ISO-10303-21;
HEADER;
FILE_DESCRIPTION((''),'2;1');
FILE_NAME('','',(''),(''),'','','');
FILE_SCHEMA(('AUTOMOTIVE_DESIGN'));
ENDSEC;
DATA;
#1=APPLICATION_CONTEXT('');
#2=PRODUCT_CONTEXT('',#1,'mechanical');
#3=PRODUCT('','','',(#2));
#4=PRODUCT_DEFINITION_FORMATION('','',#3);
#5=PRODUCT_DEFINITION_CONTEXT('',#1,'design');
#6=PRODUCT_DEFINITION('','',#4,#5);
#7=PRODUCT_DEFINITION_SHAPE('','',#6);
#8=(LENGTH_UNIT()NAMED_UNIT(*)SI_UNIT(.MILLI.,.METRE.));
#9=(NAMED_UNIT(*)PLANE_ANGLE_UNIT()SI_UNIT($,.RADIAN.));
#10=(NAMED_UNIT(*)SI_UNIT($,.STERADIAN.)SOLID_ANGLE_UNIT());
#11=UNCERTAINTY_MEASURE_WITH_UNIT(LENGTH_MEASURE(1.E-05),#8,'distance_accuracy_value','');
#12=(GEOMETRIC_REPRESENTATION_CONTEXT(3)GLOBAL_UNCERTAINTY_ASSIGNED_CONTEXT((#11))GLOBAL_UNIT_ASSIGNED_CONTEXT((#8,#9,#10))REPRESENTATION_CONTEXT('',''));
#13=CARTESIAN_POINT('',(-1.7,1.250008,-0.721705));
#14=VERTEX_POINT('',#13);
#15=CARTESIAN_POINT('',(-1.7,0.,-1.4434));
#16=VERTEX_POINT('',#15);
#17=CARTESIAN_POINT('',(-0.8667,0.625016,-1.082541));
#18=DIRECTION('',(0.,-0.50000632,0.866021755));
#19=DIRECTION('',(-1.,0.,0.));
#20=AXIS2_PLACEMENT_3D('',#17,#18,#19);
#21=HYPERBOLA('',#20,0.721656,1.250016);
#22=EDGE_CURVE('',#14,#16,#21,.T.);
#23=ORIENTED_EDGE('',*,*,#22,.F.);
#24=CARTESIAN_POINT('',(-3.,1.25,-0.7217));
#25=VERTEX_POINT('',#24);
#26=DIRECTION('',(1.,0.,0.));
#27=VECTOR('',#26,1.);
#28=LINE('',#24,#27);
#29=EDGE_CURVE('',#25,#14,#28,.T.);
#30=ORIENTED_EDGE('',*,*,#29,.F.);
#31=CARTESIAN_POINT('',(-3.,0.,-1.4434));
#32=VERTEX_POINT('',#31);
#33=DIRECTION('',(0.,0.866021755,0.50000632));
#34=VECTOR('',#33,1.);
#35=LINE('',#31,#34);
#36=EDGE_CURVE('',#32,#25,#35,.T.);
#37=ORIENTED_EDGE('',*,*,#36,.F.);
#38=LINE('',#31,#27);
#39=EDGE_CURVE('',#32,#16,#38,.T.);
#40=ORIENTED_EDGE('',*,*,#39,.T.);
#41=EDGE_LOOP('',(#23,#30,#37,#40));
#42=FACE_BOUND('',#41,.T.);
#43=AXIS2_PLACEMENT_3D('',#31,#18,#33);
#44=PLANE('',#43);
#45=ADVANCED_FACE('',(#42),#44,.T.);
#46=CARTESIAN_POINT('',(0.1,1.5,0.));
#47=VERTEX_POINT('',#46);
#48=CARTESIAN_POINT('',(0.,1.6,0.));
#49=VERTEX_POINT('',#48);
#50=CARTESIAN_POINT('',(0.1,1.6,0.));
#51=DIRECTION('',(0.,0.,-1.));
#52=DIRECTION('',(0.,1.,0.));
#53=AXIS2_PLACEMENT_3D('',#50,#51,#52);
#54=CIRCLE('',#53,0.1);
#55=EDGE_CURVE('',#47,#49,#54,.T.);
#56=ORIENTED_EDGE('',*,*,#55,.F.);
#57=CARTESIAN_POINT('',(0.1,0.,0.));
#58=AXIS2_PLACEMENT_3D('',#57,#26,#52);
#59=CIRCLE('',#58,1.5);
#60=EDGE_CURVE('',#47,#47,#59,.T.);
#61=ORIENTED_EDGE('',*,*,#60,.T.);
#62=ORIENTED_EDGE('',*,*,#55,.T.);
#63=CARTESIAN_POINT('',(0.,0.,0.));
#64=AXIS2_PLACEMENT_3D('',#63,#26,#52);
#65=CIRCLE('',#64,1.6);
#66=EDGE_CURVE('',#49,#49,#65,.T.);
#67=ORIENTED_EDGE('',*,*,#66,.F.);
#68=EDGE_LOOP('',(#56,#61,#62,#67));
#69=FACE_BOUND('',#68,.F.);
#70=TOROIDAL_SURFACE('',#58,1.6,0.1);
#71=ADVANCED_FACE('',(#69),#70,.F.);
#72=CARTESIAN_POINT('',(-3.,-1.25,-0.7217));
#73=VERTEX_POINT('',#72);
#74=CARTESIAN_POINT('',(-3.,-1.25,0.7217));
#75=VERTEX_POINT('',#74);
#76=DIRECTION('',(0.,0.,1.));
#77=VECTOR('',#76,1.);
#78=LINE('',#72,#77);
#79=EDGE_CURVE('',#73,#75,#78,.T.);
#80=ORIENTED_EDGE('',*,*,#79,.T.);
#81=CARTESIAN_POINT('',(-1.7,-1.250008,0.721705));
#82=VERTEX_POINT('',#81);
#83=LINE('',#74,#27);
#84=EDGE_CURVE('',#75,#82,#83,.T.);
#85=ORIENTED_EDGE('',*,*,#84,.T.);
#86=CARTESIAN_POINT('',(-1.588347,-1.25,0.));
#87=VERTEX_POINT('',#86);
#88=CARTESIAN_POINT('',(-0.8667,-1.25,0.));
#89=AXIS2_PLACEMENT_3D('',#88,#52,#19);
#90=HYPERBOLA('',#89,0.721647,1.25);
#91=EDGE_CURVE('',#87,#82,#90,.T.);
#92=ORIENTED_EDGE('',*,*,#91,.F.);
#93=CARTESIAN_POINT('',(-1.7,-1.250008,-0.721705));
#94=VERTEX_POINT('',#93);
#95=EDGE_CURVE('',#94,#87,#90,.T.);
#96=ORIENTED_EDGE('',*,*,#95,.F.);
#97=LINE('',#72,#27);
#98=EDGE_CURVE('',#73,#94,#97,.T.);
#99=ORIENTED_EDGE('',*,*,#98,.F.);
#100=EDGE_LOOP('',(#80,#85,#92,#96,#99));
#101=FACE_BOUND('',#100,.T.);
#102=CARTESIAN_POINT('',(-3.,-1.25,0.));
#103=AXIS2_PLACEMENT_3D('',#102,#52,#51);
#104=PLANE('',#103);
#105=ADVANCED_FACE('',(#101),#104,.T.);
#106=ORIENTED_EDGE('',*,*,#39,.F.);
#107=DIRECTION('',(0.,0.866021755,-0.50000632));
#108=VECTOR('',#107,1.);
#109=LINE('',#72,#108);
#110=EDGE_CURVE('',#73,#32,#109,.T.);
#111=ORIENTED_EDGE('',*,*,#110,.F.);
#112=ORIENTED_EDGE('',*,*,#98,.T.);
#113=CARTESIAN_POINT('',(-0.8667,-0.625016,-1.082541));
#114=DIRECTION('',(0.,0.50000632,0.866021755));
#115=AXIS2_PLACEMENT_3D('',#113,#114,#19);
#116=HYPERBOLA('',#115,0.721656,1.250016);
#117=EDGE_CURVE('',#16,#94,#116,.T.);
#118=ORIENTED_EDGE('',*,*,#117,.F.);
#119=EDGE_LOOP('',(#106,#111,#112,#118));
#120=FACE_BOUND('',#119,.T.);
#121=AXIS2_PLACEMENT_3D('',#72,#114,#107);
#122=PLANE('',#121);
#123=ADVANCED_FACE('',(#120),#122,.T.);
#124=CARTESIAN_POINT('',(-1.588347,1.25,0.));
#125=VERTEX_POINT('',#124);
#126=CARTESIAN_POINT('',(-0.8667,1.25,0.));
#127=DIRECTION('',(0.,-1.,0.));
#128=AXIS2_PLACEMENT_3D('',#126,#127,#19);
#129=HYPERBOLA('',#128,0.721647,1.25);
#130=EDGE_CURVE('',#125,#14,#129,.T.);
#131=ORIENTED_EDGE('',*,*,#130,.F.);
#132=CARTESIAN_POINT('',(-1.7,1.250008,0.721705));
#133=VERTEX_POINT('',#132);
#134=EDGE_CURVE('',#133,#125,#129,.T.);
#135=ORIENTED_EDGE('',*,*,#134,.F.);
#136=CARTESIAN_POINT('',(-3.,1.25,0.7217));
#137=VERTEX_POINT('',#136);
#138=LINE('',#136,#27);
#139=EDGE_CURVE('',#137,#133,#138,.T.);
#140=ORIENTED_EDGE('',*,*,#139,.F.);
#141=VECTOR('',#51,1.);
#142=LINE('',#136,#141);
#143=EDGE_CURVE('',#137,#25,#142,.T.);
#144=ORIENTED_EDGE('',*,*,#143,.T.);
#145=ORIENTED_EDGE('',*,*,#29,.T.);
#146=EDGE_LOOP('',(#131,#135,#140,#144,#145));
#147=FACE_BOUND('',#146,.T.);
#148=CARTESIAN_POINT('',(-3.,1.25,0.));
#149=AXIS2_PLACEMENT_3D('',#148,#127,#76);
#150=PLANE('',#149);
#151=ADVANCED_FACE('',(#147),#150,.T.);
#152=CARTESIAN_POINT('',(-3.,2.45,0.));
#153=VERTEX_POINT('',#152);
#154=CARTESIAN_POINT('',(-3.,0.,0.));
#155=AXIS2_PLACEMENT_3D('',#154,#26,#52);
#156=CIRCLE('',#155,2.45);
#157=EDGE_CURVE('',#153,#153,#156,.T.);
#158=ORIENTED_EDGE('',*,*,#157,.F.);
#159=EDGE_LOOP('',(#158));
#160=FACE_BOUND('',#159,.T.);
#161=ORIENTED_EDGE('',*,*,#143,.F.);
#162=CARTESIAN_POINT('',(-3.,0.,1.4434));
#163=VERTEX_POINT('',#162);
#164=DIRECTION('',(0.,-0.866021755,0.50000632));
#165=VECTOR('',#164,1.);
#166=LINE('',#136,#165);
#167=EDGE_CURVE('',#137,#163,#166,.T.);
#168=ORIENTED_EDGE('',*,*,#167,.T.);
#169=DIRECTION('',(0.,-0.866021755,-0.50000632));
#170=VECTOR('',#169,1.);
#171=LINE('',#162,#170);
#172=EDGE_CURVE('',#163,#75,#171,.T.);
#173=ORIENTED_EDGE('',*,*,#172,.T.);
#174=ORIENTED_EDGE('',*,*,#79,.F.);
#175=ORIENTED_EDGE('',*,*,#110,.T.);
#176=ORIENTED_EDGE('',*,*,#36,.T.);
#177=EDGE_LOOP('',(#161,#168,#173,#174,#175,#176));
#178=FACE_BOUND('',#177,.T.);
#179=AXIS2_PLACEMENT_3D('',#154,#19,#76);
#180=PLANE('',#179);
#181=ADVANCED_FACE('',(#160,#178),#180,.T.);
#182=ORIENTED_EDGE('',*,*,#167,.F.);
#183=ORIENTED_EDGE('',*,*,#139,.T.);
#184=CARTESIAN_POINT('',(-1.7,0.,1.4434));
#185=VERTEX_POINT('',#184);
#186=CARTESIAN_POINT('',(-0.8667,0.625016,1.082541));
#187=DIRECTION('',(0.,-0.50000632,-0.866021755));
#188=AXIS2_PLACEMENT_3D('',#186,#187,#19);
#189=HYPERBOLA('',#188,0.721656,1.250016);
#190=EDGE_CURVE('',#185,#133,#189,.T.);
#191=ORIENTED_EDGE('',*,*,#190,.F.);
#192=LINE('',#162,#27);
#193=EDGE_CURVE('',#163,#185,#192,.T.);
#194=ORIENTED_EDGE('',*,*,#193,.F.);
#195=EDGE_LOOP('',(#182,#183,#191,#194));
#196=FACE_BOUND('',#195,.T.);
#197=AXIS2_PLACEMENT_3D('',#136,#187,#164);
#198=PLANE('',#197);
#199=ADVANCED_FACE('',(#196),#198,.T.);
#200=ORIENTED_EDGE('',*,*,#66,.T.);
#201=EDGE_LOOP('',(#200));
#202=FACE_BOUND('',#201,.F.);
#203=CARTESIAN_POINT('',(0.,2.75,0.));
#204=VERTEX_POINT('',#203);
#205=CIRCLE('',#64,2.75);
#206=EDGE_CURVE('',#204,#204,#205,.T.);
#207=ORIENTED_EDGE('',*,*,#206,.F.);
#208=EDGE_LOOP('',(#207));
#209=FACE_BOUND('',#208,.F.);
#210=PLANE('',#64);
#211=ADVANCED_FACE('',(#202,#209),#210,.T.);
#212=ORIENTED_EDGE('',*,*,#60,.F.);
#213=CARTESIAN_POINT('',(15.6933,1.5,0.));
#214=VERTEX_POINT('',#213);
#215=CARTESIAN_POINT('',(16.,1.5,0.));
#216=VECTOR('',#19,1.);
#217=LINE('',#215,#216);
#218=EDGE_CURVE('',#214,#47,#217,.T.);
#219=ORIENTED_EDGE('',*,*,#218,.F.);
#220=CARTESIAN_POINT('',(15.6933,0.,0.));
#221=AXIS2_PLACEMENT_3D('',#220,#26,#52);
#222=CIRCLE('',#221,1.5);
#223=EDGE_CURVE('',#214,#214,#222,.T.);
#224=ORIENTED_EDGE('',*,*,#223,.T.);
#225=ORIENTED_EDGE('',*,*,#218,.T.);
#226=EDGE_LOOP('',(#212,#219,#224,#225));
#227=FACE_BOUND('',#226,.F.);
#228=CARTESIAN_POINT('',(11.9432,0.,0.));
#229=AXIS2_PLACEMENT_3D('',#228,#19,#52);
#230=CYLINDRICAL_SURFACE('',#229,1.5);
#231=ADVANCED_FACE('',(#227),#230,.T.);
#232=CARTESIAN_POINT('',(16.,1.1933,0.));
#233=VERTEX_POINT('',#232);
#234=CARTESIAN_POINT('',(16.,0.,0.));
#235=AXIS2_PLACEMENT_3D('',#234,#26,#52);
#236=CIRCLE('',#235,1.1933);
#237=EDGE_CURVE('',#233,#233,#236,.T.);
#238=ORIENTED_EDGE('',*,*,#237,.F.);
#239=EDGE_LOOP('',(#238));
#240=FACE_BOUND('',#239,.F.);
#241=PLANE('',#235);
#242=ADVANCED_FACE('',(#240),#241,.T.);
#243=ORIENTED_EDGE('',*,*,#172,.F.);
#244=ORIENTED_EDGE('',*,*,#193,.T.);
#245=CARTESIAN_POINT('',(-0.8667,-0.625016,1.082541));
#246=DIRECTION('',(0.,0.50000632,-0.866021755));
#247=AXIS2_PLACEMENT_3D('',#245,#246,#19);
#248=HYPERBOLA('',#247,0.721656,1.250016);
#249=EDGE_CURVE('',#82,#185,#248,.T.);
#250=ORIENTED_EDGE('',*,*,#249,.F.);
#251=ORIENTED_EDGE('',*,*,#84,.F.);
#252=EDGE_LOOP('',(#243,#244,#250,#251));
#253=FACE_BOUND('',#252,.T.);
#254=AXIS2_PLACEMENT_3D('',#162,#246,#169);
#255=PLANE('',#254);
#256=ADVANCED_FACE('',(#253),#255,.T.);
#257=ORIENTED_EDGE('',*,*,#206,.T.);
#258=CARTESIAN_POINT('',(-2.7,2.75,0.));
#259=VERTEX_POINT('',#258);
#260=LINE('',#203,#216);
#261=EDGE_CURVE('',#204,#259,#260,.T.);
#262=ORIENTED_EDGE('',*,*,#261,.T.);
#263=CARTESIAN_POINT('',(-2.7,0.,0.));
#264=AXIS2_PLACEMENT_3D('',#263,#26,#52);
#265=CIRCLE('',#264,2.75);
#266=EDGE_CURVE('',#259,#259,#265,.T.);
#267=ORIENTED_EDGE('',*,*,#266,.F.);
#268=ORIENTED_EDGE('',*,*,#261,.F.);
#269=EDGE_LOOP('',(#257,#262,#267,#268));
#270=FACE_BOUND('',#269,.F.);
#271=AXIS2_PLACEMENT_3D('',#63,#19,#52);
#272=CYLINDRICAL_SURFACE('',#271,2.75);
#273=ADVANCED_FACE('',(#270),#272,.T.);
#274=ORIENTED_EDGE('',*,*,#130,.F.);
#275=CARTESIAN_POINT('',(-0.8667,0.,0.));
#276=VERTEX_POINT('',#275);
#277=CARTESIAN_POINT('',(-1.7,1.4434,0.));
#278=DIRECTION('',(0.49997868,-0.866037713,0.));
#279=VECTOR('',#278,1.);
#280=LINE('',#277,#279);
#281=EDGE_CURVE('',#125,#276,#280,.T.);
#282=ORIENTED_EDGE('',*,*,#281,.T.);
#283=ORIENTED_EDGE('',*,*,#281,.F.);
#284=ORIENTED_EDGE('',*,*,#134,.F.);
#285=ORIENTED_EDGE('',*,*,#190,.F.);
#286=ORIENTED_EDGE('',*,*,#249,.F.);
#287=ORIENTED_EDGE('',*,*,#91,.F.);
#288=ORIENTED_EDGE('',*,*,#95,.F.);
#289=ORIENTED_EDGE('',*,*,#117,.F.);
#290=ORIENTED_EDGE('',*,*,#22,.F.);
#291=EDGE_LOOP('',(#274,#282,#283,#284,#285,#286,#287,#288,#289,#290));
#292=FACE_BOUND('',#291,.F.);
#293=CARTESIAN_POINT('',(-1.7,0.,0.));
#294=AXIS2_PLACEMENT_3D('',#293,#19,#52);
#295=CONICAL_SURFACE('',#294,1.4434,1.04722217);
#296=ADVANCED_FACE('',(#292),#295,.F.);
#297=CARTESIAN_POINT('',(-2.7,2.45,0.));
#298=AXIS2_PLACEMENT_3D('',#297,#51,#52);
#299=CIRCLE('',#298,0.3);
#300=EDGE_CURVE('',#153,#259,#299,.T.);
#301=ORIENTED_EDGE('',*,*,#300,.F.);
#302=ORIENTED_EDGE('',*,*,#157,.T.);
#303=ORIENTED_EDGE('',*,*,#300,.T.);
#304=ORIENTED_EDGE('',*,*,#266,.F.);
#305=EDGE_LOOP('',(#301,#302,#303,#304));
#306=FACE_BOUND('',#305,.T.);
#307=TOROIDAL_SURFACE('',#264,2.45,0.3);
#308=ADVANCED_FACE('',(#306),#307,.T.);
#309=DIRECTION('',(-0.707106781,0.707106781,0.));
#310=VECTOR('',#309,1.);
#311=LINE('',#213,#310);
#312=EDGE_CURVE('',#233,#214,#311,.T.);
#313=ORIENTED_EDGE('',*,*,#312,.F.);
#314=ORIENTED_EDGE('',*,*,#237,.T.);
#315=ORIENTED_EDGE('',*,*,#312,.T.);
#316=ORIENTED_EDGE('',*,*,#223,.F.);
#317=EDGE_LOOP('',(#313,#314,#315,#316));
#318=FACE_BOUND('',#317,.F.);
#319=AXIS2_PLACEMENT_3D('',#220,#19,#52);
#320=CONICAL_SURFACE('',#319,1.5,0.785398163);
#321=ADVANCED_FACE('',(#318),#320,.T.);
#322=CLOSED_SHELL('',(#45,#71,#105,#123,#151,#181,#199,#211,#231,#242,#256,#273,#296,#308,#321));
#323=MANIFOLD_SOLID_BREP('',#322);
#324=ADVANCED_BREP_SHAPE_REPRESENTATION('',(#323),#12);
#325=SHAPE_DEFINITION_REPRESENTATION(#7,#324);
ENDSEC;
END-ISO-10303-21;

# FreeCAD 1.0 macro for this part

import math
import FreeCAD as App
import Part
import Sketcher
from FreeCAD import Vector
Q = App.Units.Quantity


def edges_at(feature, points):
    """Names of the edges that pass closest to the given points."""
    edges = feature.Shape.Edges
    near = lambda p: min(range(len(edges)), key=lambda i: edges[i].distToShape(Part.Vertex(*p))[0])
    return sorted({f"Edge{near(p) + 1}" for p in points})

doc = App.newDocument("Part")
body = doc.addObject("PartDesign::Body", "Body")

sketch1 = body.newObject("Sketcher::SketchObject", "Sketch")
sketch1.AttachmentSupport = (doc.getObject("XY_Plane"), [""])
sketch1.MapMode = "FlatFace"
sketch1.addGeometry([
    Part.LineSegment(Vector(-1.7, 1.4434, 0), Vector(-0.8667, 0, 0)),
    Part.LineSegment(Vector(-0.8667, 0, 0), Vector(16, 0, 0)),
    Part.LineSegment(Vector(16, 0, 0), Vector(16, 1.5, 0)),
    Part.LineSegment(Vector(16, 1.5, 0), Vector(0, 1.5, 0)),
    Part.LineSegment(Vector(0, 1.5, 0), Vector(0, 2.75, 0)),
    Part.LineSegment(Vector(0, 2.75, 0), Vector(-3, 2.75, 0)),
    Part.LineSegment(Vector(-3, 2.75, 0), Vector(-3, 1.4434, 0)),
    Part.LineSegment(Vector(-3, 1.4434, 0), Vector(-1.7, 1.4434, 0)),
], False)
sketch1.addConstraint([
    Sketcher.Constraint("Coincident", 0, 2, 1, 1),
    Sketcher.Constraint("Coincident", 1, 2, 2, 1),
    Sketcher.Constraint("Coincident", 2, 2, 3, 1),
    Sketcher.Constraint("Coincident", 3, 2, 4, 1),
    Sketcher.Constraint("Coincident", 4, 2, 5, 1),
    Sketcher.Constraint("Coincident", 5, 2, 6, 1),
    Sketcher.Constraint("Coincident", 6, 2, 7, 1),
    Sketcher.Constraint("Coincident", 7, 2, 0, 1),
    Sketcher.Constraint("Horizontal", 1),
    Sketcher.Constraint("Vertical", 2),
    Sketcher.Constraint("Horizontal", 3),
    Sketcher.Constraint("Vertical", 4),
    Sketcher.Constraint("Horizontal", 5),
    Sketcher.Constraint("Vertical", 6),
    Sketcher.Constraint("Horizontal", 7),
    Sketcher.Constraint("PointOnObject", 0, 2, -1),
    Sketcher.Constraint("PointOnObject", 3, 2, -2),
    Sketcher.Constraint("DistanceX", 3, 2, 3, 1, Q("16 mm")),
    Sketcher.Constraint("DistanceX", 5, 2, 5, 1, Q("3 mm")),
    Sketcher.Constraint("DistanceX", 7, 1, 7, 2, Q("1.3 mm")),
    Sketcher.Constraint("DistanceY", 2, 1, 2, 2, Q("1.5 mm")),
    Sketcher.Constraint("DistanceY", 4, 1, 4, 2, Q("1.25 mm")),
    Sketcher.Constraint("DistanceX", 1, 1, 1, 2, Q("16.8667 mm")),
    Sketcher.Constraint("DistanceY", 6, 2, 6, 1, Q("1.3066 mm")),
])
revolution = body.newObject("PartDesign::Revolution", "Revolution")
revolution.Profile = sketch1
revolution.ReferenceAxis = (sketch1, ["H_Axis"])
revolution.Angle = 360

sketch2 = body.newObject("Sketcher::SketchObject", "Sketch001")
sketch2.AttachmentSupport = (doc.getObject("YZ_Plane"), [""])
sketch2.MapMode = "FlatFace"
sketch2.AttachmentOffset = App.Placement(Vector(0, 0, -3), App.Rotation())
sketch2.addGeometry([
    Part.LineSegment(Vector(1.25, 0.7217, 0), Vector(0, 1.4434, 0)),
    Part.ArcOfCircle(Part.Circle(Vector(0, 0, 0), Vector(0, 0, 1), 1.4434), math.radians(30.000418), math.radians(90)),
    Part.ArcOfCircle(Part.Circle(Vector(0, 0, 0), Vector(0, 0, 1), 1.4434), math.radians(90), math.radians(149.999582)),
    Part.LineSegment(Vector(0, 1.4434, 0), Vector(-1.25, 0.7217, 0)),
    Part.ArcOfCircle(Part.Circle(Vector(0, 0, 0), Vector(0, 0, 1), 1.4434), math.radians(-30.000418), math.radians(30.000418)),
    Part.LineSegment(Vector(1.25, 0.7217, 0), Vector(1.25, -0.7217, 0)),
    Part.LineSegment(Vector(-1.25, 0.7217, 0), Vector(-1.25, -0.7217, 0)),
    Part.ArcOfCircle(Part.Circle(Vector(0, 0, 0), Vector(0, 0, 1), 1.4434), math.radians(149.999582), math.radians(210.000418)),
    Part.LineSegment(Vector(-1.25, -0.7217, 0), Vector(0, -1.4434, 0)),
    Part.ArcOfCircle(Part.Circle(Vector(0, 0, 0), Vector(0, 0, 1), 1.4434), math.radians(-149.999582), math.radians(-90)),
    Part.ArcOfCircle(Part.Circle(Vector(0, 0, 0), Vector(0, 0, 1), 1.4434), math.radians(-90), math.radians(-30.000418)),
    Part.LineSegment(Vector(0, -1.4434, 0), Vector(1.25, -0.7217, 0)),
], False)
sketch2.addConstraint([
    Sketcher.Constraint("Coincident", 0, 1, 1, 1),
    Sketcher.Constraint("Coincident", 1, 2, 0, 2),
    Sketcher.Constraint("Coincident", 2, 1, 3, 1),
    Sketcher.Constraint("Coincident", 3, 2, 2, 2),
    Sketcher.Constraint("Coincident", 4, 1, 5, 2),
    Sketcher.Constraint("Coincident", 5, 1, 4, 2),
    Sketcher.Constraint("Coincident", 6, 1, 7, 1),
    Sketcher.Constraint("Coincident", 7, 2, 6, 2),
    Sketcher.Constraint("Coincident", 8, 1, 9, 1),
    Sketcher.Constraint("Coincident", 9, 2, 8, 2),
    Sketcher.Constraint("Coincident", 10, 1, 11, 1),
    Sketcher.Constraint("Coincident", 11, 2, 10, 2),
    Sketcher.Constraint("Vertical", 5),
    Sketcher.Constraint("Vertical", 6),
    Sketcher.Constraint("Coincident", 1, 3, -1, 1),
    Sketcher.Constraint("Coincident", 2, 3, -1, 1),
    Sketcher.Constraint("Coincident", 4, 3, -1, 1),
    Sketcher.Constraint("Coincident", 7, 3, -1, 1),
    Sketcher.Constraint("Coincident", 9, 3, -1, 1),
    Sketcher.Constraint("Coincident", 10, 3, -1, 1),
    Sketcher.Constraint("Coincident", 2, 1, 1, 2),
    Sketcher.Constraint("Coincident", 5, 1, 0, 1),
    Sketcher.Constraint("Coincident", 6, 1, 3, 2),
    Sketcher.Constraint("Coincident", 8, 1, 7, 2),
    Sketcher.Constraint("Coincident", 10, 1, 9, 2),
    Sketcher.Constraint("PointOnObject", 1, 2, -2),
    Sketcher.Constraint("PointOnObject", 9, 2, -2),
    Sketcher.Constraint("Parallel", 0, 8),
    Sketcher.Constraint("Parallel", 3, 11),
    Sketcher.Constraint("Angle", 0, Q("149.9996 deg")),
    Sketcher.Constraint("Radius", 1, Q("1.4434 mm")),
])
pad1 = body.newObject("PartDesign::Pad", "Pad")
pad1.Profile = sketch2
pad1.Type = "UpToFirst"
doc.recompute()

fillet = body.newObject("PartDesign::Fillet", "Fillet")
fillet.Base = (pad1, edges_at(pad1, [(-3, -2.75, 0)]))
fillet.Radius = 0.3
doc.recompute()

chamfer = body.newObject("PartDesign::Chamfer", "Chamfer")
chamfer.Base = (fillet, edges_at(fillet, [(16, -1.5, 0)]))
chamfer.ChamferType = "Two distances"
chamfer.Size = 0.3067
chamfer.Size2 = 0.3067
doc.recompute()

fillet2 = body.newObject("PartDesign::Fillet", "Fillet001")
fillet2.Base = (chamfer, edges_at(chamfer, [(0, -1.5, 0)]))
fillet2.Radius = 0.1

doc.recompute()
